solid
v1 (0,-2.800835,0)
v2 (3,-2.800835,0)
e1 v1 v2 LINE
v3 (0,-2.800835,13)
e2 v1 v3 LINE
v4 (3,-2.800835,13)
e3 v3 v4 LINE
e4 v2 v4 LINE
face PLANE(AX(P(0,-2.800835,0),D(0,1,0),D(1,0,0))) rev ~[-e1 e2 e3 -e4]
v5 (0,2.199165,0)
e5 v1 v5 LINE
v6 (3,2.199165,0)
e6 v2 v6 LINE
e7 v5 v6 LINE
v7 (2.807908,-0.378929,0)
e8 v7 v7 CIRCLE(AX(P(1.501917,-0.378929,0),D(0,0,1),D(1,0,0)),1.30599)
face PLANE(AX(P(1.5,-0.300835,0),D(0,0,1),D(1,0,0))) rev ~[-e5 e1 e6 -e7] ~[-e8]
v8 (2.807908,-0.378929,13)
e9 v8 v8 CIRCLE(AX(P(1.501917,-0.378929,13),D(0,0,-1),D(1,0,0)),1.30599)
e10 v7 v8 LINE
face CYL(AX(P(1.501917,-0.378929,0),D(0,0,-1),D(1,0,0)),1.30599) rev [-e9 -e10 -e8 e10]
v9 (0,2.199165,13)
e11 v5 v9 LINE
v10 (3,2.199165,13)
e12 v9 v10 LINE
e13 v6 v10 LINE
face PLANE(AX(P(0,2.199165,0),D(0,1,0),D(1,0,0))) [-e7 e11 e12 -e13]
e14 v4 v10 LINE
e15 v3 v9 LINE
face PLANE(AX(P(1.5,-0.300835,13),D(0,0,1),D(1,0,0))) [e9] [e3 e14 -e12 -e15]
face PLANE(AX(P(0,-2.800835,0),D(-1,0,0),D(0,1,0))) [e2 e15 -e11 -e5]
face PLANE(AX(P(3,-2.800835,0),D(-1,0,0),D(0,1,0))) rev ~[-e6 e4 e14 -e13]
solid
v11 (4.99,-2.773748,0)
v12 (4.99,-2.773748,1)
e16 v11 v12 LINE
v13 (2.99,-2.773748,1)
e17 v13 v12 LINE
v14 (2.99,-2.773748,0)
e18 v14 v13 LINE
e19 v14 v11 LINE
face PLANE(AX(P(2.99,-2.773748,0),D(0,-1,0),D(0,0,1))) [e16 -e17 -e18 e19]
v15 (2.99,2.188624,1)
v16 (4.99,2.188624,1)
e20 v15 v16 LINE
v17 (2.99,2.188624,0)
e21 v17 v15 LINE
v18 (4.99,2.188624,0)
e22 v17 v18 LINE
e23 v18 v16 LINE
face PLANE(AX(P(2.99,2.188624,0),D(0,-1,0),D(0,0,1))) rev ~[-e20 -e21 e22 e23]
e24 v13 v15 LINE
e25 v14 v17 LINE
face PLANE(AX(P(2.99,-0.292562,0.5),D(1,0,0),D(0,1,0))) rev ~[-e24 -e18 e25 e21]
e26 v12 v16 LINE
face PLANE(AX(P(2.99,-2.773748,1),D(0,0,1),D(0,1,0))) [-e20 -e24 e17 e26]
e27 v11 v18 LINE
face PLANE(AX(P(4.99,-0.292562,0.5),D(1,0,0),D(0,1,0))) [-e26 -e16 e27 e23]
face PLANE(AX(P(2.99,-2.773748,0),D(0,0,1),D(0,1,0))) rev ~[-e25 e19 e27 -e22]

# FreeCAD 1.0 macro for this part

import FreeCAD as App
import Part
import Sketcher
Q = App.Units.Quantity

doc = App.newDocument("Part")
body = doc.addObject("PartDesign::Body", "Body")

sketch1 = doc.addObject("Sketcher::SketchObject", "Sketch")
body.addObject(sketch1)
sketch1.AttachmentSupport = (doc.XY_Plane, [""])
sketch1.MapMode = "FlatFace"
sketch1.addGeometry([
    Part.LineSegment(App.Vector(0, 2.2, 0), App.Vector(0, -2.8, 0)),
    Part.LineSegment(App.Vector(0, -2.8, 0), App.Vector(3, -2.8, 0)),
    Part.LineSegment(App.Vector(3, -2.8, 0), App.Vector(3, 2.2, 0)),
    Part.LineSegment(App.Vector(3, 2.2, 0), App.Vector(0, 2.2, 0)),
], False)
sketch1.addConstraint([
    Sketcher.Constraint("Coincident", 0, 2, 1, 1),
    Sketcher.Constraint("Coincident", 1, 2, 2, 1),
    Sketcher.Constraint("Coincident", 2, 2, 3, 1),
    Sketcher.Constraint("Coincident", 3, 2, 0, 1),
    Sketcher.Constraint("Vertical", 0),
    Sketcher.Constraint("Horizontal", 1),
    Sketcher.Constraint("Vertical", 2),
    Sketcher.Constraint("Horizontal", 3),
    Sketcher.Constraint("PointOnObject", 0, 2, -2),
    Sketcher.Constraint("DistanceX", 1, 1, 1, 2, Q("3 mm")),
    Sketcher.Constraint("DistanceY", 0, 2, 0, 1, Q("5 mm")),
    Sketcher.Constraint("DistanceY", 0, 2, -1, 1, Q("2.800835 mm")),
])
pad1 = doc.addObject("PartDesign::Pad", "Pad")
body.addObject(pad1)
pad1.Profile = sketch1
pad1.Length = 13

sketch2 = doc.addObject("Sketcher::SketchObject", "Sketch001")
body.addObject(sketch2)
sketch2.AttachmentSupport = (doc.XY_Plane, [""])
sketch2.MapMode = "FlatFace"
sketch2.addGeometry(Part.Circle(App.Vector(1.5, -0.4, 0), App.Vector(0, 0, 1), 1.3), False)
sketch2.addConstraint([
    Sketcher.Constraint("Diameter", 0, Q("2.611981 mm")),
    Sketcher.Constraint("DistanceY", 0, 3, -1, 1, Q("0.378929 mm")),
    Sketcher.Constraint("DistanceX", -1, 1, 0, 3, Q("1.501917 mm")),
])
pocket1 = doc.addObject("PartDesign::Pocket", "Pocket")
body.addObject(pocket1)
pocket1.Profile = sketch2
pocket1.Length = 43.8
pocket1.Reversed = True
body2 = doc.addObject("PartDesign::Body", "Body001")

sketch3 = doc.addObject("Sketcher::SketchObject", "Sketch002")
body2.addObject(sketch3)
sketch3.AttachmentSupport = (doc.getObject("YZ_Plane001"), [""])
sketch3.MapMode = "FlatFace"
sketch3.AttachmentOffset = App.Placement(App.Vector(0, 0, 2.99), App.Rotation())
sketch3.addGeometry([
    Part.LineSegment(App.Vector(-2.8, 1, 0), App.Vector(-2.8, 0, 0)),
    Part.LineSegment(App.Vector(-2.8, 0, 0), App.Vector(2.2, 0, 0)),
    Part.LineSegment(App.Vector(2.2, 0, 0), App.Vector(2.2, 1, 0)),
    Part.LineSegment(App.Vector(2.2, 1, 0), App.Vector(-2.8, 1, 0)),
], False)
sketch3.addConstraint([
    Sketcher.Constraint("Coincident", 0, 2, 1, 1),
    Sketcher.Constraint("Coincident", 1, 2, 2, 1),
    Sketcher.Constraint("Coincident", 2, 2, 3, 1),
    Sketcher.Constraint("Coincident", 3, 2, 0, 1),
    Sketcher.Constraint("Vertical", 0),
    Sketcher.Constraint("Horizontal", 1),
    Sketcher.Constraint("Vertical", 2),
    Sketcher.Constraint("Horizontal", 3),
    Sketcher.Constraint("PointOnObject", 0, 2, -1),
    Sketcher.Constraint("DistanceY", 0, 2, 0, 1, Q("1 mm")),
    Sketcher.Constraint("DistanceX", 1, 1, 1, 2, Q("4.962372 mm")),
    Sketcher.Constraint("DistanceX", 0, 2, -1, 1, Q("2.773748 mm")),
])
pad2 = doc.addObject("PartDesign::Pad", "Pad001")
body2.addObject(pad2)
pad2.Profile = sketch3
pad2.Length = 2

doc.recompute()
